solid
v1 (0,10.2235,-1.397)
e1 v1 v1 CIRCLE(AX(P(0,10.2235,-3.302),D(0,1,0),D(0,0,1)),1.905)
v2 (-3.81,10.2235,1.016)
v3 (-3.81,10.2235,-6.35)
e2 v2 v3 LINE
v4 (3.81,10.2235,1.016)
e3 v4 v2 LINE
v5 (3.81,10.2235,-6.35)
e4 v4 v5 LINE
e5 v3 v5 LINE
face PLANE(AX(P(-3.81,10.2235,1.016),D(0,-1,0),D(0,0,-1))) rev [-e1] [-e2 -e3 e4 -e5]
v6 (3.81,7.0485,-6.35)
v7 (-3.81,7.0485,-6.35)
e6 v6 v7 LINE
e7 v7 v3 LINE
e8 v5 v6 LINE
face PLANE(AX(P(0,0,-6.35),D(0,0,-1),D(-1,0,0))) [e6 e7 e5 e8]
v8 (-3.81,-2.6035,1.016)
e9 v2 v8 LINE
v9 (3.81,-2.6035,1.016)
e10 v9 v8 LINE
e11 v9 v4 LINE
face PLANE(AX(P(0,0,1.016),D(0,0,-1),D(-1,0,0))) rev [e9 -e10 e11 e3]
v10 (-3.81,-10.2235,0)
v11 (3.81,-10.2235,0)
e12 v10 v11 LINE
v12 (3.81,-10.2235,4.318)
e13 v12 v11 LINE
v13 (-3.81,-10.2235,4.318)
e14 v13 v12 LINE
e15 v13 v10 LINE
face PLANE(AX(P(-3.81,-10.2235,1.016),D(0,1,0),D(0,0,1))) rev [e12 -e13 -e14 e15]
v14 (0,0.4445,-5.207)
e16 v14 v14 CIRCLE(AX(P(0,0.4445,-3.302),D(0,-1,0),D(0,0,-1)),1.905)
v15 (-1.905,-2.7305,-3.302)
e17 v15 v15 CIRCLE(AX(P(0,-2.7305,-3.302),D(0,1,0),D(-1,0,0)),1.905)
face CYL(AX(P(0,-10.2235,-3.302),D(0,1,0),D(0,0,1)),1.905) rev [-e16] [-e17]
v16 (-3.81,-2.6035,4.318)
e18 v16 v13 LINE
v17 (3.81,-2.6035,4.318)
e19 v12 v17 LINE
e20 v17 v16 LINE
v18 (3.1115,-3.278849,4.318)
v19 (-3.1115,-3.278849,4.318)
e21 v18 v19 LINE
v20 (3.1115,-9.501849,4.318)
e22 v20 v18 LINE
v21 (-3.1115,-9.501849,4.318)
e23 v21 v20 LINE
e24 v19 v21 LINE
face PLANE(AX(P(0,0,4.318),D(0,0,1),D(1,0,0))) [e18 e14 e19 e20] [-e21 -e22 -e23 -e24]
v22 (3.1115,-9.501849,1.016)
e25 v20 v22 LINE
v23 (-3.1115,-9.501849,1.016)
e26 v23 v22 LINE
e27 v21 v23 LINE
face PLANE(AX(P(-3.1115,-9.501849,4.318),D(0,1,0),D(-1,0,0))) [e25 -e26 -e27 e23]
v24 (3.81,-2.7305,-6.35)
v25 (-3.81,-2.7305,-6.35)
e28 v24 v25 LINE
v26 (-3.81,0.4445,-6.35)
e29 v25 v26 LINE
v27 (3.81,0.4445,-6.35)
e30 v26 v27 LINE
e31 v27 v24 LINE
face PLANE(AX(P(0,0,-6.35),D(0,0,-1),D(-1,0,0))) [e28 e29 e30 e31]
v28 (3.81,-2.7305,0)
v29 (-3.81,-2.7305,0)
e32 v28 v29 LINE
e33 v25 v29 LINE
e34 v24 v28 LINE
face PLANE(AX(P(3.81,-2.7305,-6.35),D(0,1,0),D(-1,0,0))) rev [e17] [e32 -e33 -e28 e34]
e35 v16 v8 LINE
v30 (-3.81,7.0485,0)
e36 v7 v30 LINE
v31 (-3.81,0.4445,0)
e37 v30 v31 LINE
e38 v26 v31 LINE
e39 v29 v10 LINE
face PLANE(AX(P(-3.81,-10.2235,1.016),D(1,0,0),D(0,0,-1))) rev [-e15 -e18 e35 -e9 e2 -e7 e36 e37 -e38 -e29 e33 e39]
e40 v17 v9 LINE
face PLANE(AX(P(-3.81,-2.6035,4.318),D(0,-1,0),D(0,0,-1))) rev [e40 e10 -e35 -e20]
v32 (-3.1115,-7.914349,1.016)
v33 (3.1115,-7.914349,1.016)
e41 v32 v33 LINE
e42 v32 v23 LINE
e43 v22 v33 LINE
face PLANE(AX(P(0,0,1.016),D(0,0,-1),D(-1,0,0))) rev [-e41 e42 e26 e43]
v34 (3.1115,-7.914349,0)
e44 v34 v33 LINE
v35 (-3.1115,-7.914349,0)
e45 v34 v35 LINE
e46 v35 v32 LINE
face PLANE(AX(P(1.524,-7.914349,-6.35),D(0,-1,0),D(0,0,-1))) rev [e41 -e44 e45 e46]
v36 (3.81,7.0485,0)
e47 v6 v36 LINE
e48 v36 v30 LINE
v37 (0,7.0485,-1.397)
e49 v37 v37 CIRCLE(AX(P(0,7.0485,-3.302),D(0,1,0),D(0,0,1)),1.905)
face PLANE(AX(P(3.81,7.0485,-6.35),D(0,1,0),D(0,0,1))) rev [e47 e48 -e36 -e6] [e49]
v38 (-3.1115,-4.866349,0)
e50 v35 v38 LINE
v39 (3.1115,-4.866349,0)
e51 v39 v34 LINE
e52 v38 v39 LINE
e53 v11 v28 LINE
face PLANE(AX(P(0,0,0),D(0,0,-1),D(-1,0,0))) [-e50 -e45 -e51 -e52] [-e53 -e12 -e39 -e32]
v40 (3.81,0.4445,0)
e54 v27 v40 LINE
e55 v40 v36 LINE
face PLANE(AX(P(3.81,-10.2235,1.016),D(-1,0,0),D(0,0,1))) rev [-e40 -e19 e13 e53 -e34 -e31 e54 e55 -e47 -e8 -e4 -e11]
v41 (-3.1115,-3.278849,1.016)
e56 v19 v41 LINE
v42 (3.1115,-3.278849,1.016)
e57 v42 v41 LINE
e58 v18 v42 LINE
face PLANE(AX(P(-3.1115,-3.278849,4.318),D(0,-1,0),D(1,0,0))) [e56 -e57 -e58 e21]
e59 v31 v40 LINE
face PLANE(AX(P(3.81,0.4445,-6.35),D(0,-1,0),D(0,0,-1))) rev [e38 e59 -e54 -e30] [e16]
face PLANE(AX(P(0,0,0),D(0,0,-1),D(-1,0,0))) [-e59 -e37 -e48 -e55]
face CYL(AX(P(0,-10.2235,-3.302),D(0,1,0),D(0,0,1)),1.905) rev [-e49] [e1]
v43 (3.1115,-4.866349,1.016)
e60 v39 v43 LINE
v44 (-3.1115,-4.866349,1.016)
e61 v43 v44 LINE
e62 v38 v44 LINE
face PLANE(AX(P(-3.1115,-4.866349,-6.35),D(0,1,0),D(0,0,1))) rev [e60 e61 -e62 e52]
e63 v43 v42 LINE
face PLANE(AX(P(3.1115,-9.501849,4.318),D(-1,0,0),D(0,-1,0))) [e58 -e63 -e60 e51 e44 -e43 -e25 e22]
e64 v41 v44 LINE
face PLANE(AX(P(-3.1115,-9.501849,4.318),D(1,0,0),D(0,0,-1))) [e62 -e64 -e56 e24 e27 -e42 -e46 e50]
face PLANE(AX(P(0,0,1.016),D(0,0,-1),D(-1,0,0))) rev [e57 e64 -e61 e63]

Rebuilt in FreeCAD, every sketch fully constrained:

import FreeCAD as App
import Part
import Sketcher
from FreeCAD import Vector
Q = App.Units.Quantity

doc = App.newDocument("Part")
params = doc.addObject("Spreadsheet::Sheet", "Params")
for row, (alias, value) in enumerate([
    ("sketch1_width", "0.3 in"),
    ("sketch1_height", "0.805 in"),
    ("pad1_length", "0.04 in"),
    ("sketch2_width", "0.3 in"),
    ("sketch2_height", "0.125 in"),
    ("pad2_length", "0.25 in"),
    ("sketch3_diameter", "0.15 in"),
    ("sketch4_width", "0.3 in"),
    ("sketch4_width2", "0.245 in"),
    ("pad3_length", "0.13 in"),
    ("sketch5_height", "0.12 in"),
    ("sketch5_width", "0.245 in"),
], start=1):
    params.set(f"A{row}", alias)
    params.set(f"B{row}", "=" + value)
    params.setAlias(f"B{row}", alias)

body = doc.addObject("PartDesign::Body", "Body")

# Sketch on XY plane
sketch1 = body.newObject("Sketcher::SketchObject", "Sketch")
sketch1.AttachmentSupport = (doc.getObject("XY_Plane"), [""])
sketch1.MapMode = "FlatFace"
sketch1.addGeometry([
    Part.LineSegment(Vector(-3.81, 10.2235, 0), Vector(-3.81, -10.2235, 0)),
    Part.LineSegment(Vector(-3.81, -10.2235, 0), Vector(3.81, -10.2235, 0)),
    Part.LineSegment(Vector(3.81, -10.2235, 0), Vector(3.81, 10.2235, 0)),
    Part.LineSegment(Vector(3.81, 10.2235, 0), Vector(-3.81, 10.2235, 0)),
], False)
sketch1.addConstraint([
    Sketcher.Constraint("Coincident", 0, 2, 1, 1),
    Sketcher.Constraint("Coincident", 1, 2, 2, 1),
    Sketcher.Constraint("Coincident", 2, 2, 3, 1),
    Sketcher.Constraint("Coincident", 3, 2, 0, 1),
    Sketcher.Constraint("Vertical", 0),
    Sketcher.Constraint("Horizontal", 1),
    Sketcher.Constraint("Vertical", 2),
    Sketcher.Constraint("Horizontal", 3),
    Sketcher.Constraint("Symmetric", 0, 2, 2, 2, -1, 1),
    Sketcher.Constraint("DistanceX", 1, 1, 1, 2, Q("0.3 in")),
    Sketcher.Constraint("DistanceY", 0, 2, 0, 1, Q("0.805 in")),
])
sketch1.setExpression("Constraints[9]", "Params.sketch1_width")
sketch1.setExpression("Constraints[10]", "Params.sketch1_height")
pad1 = body.newObject("PartDesign::Pad", "Pad")
pad1.Profile = sketch1
pad1.setExpression("Length", "Params.pad1_length")

# Sketch on XY plane
sketch2 = body.newObject("Sketcher::SketchObject", "Sketch001")
sketch2.AttachmentSupport = (doc.getObject("XY_Plane"), [""])
sketch2.MapMode = "FlatFace"
sketch2.addGeometry([
    Part.LineSegment(Vector(3.81, 10.2235, 0), Vector(3.81, 7.0485, 0)),  # 0
    Part.LineSegment(Vector(3.81, 7.0485, 0), Vector(-3.81, 7.0485, 0)),  # 1
    Part.LineSegment(Vector(-3.81, 7.0485, 0), Vector(-3.81, 10.2235, 0)),  # 2
    Part.LineSegment(Vector(-3.81, 10.2235, 0), Vector(3.81, 10.2235, 0)),  # 3
    Part.LineSegment(Vector(3.81, 0.4445, 0), Vector(3.81, -2.7305, 0)),  # 4
    Part.LineSegment(Vector(3.81, -2.7305, 0), Vector(-3.81, -2.7305, 0)),  # 5
    Part.LineSegment(Vector(-3.81, -2.7305, 0), Vector(-3.81, 0.4445, 0)),  # 6
    Part.LineSegment(Vector(-3.81, 0.4445, 0), Vector(3.81, 0.4445, 0)),  # 7
], False)
sketch2.addConstraint([
    Sketcher.Constraint("Coincident", 0, 2, 1, 1),
    Sketcher.Constraint("Coincident", 1, 2, 2, 1),
    Sketcher.Constraint("Coincident", 2, 2, 3, 1),
    Sketcher.Constraint("Coincident", 3, 2, 0, 1),
    Sketcher.Constraint("Coincident", 4, 2, 5, 1),
    Sketcher.Constraint("Coincident", 5, 2, 6, 1),
    Sketcher.Constraint("Coincident", 6, 2, 7, 1),
    Sketcher.Constraint("Coincident", 7, 2, 4, 1),
    Sketcher.Constraint("Vertical", 0),
    Sketcher.Constraint("Horizontal", 1),
    Sketcher.Constraint("Vertical", 2),
    Sketcher.Constraint("Horizontal", 3),
    Sketcher.Constraint("Vertical", 4),
    Sketcher.Constraint("Horizontal", 5),
    Sketcher.Constraint("Vertical", 6),
    Sketcher.Constraint("Horizontal", 7),
    Sketcher.Constraint("Vertical", 3, 2, 4, 2),
    Sketcher.Constraint("Vertical", 2, 2, 5, 2),
    Sketcher.Constraint("Equal", 2, 4),
    Sketcher.Constraint("DistanceX", 1, 2, 1, 1, Q("0.3 in")),
    Sketcher.Constraint("DistanceY", 0, 2, 0, 1, Q("0.125 in")),
    Sketcher.Constraint("DistanceX", -1, 1, 0, 2, Q("0.15 in")),
    Sketcher.Constraint("DistanceY", 4, 2, 3, 2, Q("0.51 in")),
    Sketcher.Constraint("DistanceY", -1, 1, 0, 2, Q("0.2775 in")),
])
sketch2.setExpression("Constraints[19]", "Params.sketch2_width")
sketch2.setExpression("Constraints[20]", "Params.sketch2_height")
pad2 = body.newObject("PartDesign::Pad", "Pad001")
pad2.Profile = sketch2
pad2.setExpression("Length", "Params.pad2_length")
pad2.Reversed = True

# Sketch on XZ plane
sketch3 = body.newObject("Sketcher::SketchObject", "Sketch002")
sketch3.AttachmentSupport = (doc.getObject("XZ_Plane"), [""])
sketch3.MapMode = "FlatFace"
sketch3.AttachmentOffset = App.Placement(Vector(0, 0, -0.4025 * 25.4), App.Rotation())
sketch3.addGeometry(Part.Circle(Vector(0, -3.302, 0), Vector(0, 0, 1), 1.905), False)
sketch3.addConstraint([
    Sketcher.Constraint("PointOnObject", 0, 3, -2),
    Sketcher.Constraint("Diameter", 0, Q("0.15 in")),
    Sketcher.Constraint("DistanceY", 0, 3, -1, 1, Q("0.13 in")),
])
sketch3.setExpression("Constraints[1]", "Params.sketch3_diameter")
pocket1 = body.newObject("PartDesign::Pocket", "Pocket")
pocket1.Profile = sketch3
pocket1.Type = "ThroughAll"
pocket1.Reversed = True

# Sketch on XY plane
sketch4 = body.newObject("Sketcher::SketchObject", "Sketch003")
sketch4.AttachmentSupport = (doc.getObject("XY_Plane"), [""])
sketch4.MapMode = "FlatFace"
sketch4.AttachmentOffset = App.Placement(Vector(0, 0, 0.04 * 25.4), App.Rotation())
sketch4.addGeometry([
    Part.LineSegment(Vector(-3.81, -2.6035, 0), Vector(-3.81, -10.2235, 0)),  # 0
    Part.LineSegment(Vector(-3.81, -10.2235, 0), Vector(3.81, -10.2235, 0)),  # 1
    Part.LineSegment(Vector(3.81, -10.2235, 0), Vector(3.81, -2.6035, 0)),  # 2
    Part.LineSegment(Vector(3.81, -2.6035, 0), Vector(-3.81, -2.6035, 0)),  # 3
    Part.LineSegment(Vector(3.1115, -9.501849, 0), Vector(-3.1115, -9.501849, 0)),  # 4
    Part.LineSegment(Vector(-3.1115, -9.501849, 0), Vector(-3.1115, -3.278849, 0)),  # 5
    Part.LineSegment(Vector(-3.1115, -3.278849, 0), Vector(3.1115, -3.278849, 0)),  # 6
    Part.LineSegment(Vector(3.1115, -3.278849, 0), Vector(3.1115, -9.501849, 0)),  # 7
], False)
sketch4.addConstraint([
    Sketcher.Constraint("Coincident", 0, 2, 1, 1),
    Sketcher.Constraint("Coincident", 1, 2, 2, 1),
    Sketcher.Constraint("Coincident", 2, 2, 3, 1),
    Sketcher.Constraint("Coincident", 3, 2, 0, 1),
    Sketcher.Constraint("Coincident", 4, 2, 5, 1),
    Sketcher.Constraint("Coincident", 5, 2, 6, 1),
    Sketcher.Constraint("Coincident", 6, 2, 7, 1),
    Sketcher.Constraint("Coincident", 7, 2, 4, 1),
    Sketcher.Constraint("Vertical", 0),
    Sketcher.Constraint("Horizontal", 1),
    Sketcher.Constraint("Vertical", 2),
    Sketcher.Constraint("Horizontal", 3),
    Sketcher.Constraint("Horizontal", 4),
    Sketcher.Constraint("Vertical", 5),
    Sketcher.Constraint("Horizontal", 6),
    Sketcher.Constraint("Vertical", 7),
    Sketcher.Constraint("Equal", 3, 0),
    Sketcher.Constraint("Equal", 6, 5),
    Sketcher.Constraint("DistanceX", 1, 1, 1, 2, Q("0.3 in")),
    Sketcher.Constraint("DistanceX", 4, 2, 4, 1, Q("0.245 in")),
    Sketcher.Constraint("DistanceX", 0, 2, -1, 1, Q("0.15 in")),
    Sketcher.Constraint("DistanceY", 0, 2, -1, 1, Q("0.4025 in")),
    Sketcher.Constraint("DistanceX", 4, 2, -1, 1, Q("0.1225 in")),
    Sketcher.Constraint("DistanceY", 4, 2, -1, 1, Q("9.501849 mm")),
])
sketch4.setExpression("Constraints[18]", "Params.sketch4_width")
sketch4.setExpression("Constraints[19]", "Params.sketch4_width2")
pad3 = body.newObject("PartDesign::Pad", "Pad002")
pad3.Profile = sketch4
pad3.setExpression("Length", "Params.pad3_length")

# Sketch on XY plane
sketch5 = body.newObject("Sketcher::SketchObject", "Sketch004")
sketch5.AttachmentSupport = (doc.getObject("XY_Plane"), [""])
sketch5.MapMode = "FlatFace"
sketch5.AttachmentOffset = App.Placement(Vector(0, 0, 0.04 * 25.4), App.Rotation())
sketch5.addGeometry([
    Part.LineSegment(Vector(-3.1115, -7.914349, 0), Vector(3.1115, -7.914349, 0)),
    Part.LineSegment(Vector(3.1115, -7.914349, 0), Vector(3.1115, -4.866349, 0)),
    Part.LineSegment(Vector(3.1115, -4.866349, 0), Vector(-3.1115, -4.866349, 0)),
    Part.LineSegment(Vector(-3.1115, -4.866349, 0), Vector(-3.1115, -7.914349, 0)),
], False)
sketch5.addConstraint([
    Sketcher.Constraint("Coincident", 0, 2, 1, 1),
    Sketcher.Constraint("Coincident", 1, 2, 2, 1),
    Sketcher.Constraint("Coincident", 2, 2, 3, 1),
    Sketcher.Constraint("Coincident", 3, 2, 0, 1),
    Sketcher.Constraint("Horizontal", 0),
    Sketcher.Constraint("Vertical", 1),
    Sketcher.Constraint("Horizontal", 2),
    Sketcher.Constraint("Vertical", 3),
    Sketcher.Constraint("DistanceY", 1, 1, 1, 2, Q("0.12 in")),
    Sketcher.Constraint("DistanceX", 0, 1, 0, 2, Q("0.245 in")),
    Sketcher.Constraint("DistanceX", -1, 1, 0, 2, Q("0.1225 in")),
    Sketcher.Constraint("DistanceY", 0, 2, -1, 1, Q("7.914349 mm")),
])
sketch5.setExpression("Constraints[8]", "Params.sketch5_height")
sketch5.setExpression("Constraints[9]", "Params.sketch5_width")
pocket2 = body.newObject("PartDesign::Pocket", "Pocket001")
pocket2.Profile = sketch5
pocket2.Type = "ThroughAll"

doc.recompute()
